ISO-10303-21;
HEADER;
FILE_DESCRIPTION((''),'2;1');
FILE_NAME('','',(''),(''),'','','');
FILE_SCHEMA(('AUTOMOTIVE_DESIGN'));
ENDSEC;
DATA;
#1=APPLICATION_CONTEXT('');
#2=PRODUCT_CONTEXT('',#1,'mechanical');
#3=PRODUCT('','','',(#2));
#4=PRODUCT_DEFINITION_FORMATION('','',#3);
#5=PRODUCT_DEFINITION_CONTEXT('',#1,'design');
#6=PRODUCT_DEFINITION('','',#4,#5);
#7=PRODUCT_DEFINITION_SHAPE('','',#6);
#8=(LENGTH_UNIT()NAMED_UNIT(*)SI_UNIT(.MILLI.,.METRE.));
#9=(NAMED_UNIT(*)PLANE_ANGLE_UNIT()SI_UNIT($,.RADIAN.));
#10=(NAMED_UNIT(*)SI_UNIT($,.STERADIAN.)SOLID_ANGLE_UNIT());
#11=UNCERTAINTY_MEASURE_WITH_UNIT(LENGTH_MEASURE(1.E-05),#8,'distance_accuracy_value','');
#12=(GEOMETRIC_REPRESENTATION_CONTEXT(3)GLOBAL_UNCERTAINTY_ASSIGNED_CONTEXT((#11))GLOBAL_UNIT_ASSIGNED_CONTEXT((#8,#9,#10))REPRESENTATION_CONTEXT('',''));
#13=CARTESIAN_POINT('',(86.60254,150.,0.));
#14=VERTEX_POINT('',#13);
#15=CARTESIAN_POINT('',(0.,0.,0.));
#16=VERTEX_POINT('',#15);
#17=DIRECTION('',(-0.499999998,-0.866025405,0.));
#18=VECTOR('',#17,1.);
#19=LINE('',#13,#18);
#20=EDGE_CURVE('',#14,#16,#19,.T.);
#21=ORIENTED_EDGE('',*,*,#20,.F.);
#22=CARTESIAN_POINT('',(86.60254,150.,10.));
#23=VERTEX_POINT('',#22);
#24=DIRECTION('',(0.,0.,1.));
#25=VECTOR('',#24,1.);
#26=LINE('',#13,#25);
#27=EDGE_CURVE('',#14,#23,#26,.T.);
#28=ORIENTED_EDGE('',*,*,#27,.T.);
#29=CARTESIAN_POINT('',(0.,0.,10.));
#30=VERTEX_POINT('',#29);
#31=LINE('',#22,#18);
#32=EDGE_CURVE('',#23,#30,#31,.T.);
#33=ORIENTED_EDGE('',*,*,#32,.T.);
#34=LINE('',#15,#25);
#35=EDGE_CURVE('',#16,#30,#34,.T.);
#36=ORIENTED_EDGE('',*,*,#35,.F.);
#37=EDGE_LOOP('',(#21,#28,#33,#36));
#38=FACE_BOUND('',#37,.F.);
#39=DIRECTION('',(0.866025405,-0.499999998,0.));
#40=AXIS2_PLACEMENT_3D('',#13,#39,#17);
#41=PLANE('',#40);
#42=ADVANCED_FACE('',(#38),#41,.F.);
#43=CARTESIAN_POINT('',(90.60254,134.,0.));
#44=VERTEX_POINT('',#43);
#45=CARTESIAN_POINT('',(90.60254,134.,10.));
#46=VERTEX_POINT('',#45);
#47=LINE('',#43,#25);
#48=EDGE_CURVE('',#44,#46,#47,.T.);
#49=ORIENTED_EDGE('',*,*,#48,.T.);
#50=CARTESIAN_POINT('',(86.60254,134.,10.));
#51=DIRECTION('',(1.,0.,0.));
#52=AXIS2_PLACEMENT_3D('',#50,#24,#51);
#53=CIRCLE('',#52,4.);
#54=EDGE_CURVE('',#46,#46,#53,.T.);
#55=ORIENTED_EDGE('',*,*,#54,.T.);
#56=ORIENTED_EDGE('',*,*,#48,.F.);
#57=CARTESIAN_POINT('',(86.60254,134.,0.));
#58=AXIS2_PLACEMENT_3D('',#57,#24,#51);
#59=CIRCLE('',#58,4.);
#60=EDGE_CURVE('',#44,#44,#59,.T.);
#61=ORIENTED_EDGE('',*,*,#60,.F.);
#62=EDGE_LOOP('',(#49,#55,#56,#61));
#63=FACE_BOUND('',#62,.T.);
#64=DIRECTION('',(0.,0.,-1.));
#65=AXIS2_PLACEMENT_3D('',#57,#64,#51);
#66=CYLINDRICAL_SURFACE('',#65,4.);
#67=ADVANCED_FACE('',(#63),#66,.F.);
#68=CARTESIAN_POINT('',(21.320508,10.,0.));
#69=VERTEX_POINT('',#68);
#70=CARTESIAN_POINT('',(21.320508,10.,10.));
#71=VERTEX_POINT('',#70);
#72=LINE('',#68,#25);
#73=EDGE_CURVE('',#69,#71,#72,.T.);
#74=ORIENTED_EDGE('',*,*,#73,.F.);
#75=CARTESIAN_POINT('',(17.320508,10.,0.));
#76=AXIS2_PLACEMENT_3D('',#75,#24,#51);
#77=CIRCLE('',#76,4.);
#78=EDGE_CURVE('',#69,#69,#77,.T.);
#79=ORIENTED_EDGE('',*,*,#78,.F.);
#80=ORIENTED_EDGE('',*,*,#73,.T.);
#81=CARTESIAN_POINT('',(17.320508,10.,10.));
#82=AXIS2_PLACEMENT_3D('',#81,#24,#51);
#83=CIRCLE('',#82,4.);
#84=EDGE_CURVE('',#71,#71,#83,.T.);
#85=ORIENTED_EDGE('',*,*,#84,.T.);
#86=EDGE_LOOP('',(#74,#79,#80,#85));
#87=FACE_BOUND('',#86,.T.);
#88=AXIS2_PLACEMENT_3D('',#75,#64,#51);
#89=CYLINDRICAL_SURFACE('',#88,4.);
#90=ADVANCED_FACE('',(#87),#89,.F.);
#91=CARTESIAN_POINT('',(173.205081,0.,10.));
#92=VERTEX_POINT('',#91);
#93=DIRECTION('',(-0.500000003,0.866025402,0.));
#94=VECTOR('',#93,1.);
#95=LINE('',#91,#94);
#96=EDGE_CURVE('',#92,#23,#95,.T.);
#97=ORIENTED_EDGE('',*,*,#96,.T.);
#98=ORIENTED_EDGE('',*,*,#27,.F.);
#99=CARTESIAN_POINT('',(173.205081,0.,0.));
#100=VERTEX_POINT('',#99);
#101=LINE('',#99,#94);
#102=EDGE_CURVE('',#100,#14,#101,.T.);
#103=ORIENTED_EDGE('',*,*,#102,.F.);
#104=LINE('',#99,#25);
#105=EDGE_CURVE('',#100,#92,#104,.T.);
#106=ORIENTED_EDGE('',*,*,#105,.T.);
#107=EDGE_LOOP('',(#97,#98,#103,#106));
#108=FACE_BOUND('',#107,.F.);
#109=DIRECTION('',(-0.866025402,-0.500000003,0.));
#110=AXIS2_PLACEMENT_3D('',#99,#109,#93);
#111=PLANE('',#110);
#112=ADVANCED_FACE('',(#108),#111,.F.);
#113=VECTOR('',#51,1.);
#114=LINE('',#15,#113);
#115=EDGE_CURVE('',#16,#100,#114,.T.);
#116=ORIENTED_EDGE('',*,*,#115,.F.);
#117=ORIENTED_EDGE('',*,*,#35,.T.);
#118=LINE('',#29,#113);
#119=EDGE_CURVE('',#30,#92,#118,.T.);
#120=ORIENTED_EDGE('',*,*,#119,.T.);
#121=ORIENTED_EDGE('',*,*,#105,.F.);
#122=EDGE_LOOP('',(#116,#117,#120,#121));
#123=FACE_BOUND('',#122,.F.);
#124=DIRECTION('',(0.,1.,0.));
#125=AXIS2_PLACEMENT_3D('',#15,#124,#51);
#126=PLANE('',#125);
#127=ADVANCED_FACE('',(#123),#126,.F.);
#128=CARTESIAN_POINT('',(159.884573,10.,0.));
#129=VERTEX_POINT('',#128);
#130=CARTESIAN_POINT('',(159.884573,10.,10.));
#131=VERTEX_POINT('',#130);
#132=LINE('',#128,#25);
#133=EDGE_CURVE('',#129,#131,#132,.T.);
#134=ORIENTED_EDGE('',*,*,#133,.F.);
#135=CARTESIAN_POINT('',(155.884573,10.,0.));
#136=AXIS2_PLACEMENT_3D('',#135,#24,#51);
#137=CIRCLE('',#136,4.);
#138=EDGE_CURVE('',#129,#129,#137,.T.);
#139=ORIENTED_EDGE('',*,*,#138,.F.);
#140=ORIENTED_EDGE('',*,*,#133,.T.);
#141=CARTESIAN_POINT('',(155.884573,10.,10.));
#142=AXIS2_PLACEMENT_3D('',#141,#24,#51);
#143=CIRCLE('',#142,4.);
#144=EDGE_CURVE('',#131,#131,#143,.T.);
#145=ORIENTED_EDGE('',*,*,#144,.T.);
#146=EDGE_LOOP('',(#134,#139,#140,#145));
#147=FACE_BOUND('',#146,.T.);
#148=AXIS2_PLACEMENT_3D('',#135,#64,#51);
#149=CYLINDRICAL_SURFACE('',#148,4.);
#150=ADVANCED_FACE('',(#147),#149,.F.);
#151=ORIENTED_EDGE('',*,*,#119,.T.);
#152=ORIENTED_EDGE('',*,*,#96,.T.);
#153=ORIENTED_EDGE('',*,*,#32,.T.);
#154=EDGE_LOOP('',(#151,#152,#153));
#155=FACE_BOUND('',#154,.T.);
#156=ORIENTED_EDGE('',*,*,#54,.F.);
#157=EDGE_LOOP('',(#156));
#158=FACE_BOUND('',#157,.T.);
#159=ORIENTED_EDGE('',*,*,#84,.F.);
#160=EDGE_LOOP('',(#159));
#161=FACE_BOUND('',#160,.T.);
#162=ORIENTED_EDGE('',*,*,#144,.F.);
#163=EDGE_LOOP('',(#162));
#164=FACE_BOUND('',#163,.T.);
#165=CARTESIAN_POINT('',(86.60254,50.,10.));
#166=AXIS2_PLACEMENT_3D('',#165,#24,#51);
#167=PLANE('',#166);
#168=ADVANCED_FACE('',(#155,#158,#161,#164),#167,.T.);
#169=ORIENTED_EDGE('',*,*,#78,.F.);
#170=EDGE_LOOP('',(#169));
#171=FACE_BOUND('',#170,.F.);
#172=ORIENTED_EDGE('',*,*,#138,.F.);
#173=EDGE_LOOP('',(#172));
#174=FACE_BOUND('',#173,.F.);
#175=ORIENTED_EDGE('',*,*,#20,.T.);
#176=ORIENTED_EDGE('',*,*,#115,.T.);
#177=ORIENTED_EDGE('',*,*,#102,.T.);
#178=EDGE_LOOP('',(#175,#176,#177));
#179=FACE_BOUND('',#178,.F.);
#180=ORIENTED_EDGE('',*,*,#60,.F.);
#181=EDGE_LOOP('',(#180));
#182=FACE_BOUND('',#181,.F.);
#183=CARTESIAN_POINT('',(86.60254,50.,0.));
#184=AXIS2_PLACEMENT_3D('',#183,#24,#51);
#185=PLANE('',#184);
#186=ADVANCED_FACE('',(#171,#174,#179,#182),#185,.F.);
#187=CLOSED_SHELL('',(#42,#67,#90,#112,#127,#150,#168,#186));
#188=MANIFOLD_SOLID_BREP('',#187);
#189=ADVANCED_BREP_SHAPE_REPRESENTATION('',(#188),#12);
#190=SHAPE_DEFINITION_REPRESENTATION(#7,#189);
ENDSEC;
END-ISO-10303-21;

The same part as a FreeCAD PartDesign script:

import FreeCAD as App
import Part
import Sketcher
from FreeCAD import Vector
Q = App.Units.Quantity


def add_polygon(sketch, points):
    """Adds a closed chain of lines whose ends are joined by coincident constraints."""
    first, n = sketch.GeometryCount, len(points)
    for a, b in zip(points, points[1:] + points[:1]):
        sketch.addGeometry(Part.LineSegment(App.Vector(*a, 0), App.Vector(*b, 0)), False)
    for i in range(n):
        sketch.addConstraint(Sketcher.Constraint("Coincident", first + i, 2, first + (i + 1) % n, 1))

doc = App.newDocument("Part")
params = doc.addObject("Spreadsheet::Sheet", "Params")
for row, (alias, value) in enumerate([
    ("sketch1_diameter", "8 mm"),
    ("pad1_length", "10 mm"),
], start=1):
    params.set(f"A{row}", alias)
    params.set(f"B{row}", "=" + value)
    params.setAlias(f"B{row}", alias)

body = doc.addObject("PartDesign::Body", "Body")

sketch1 = doc.addObject("Sketcher::SketchObject", "Sketch")
body.addObject(sketch1)
sketch1.AttachmentSupport = (doc.XY_Plane, [""])
sketch1.MapMode = "FlatFace"
add_polygon(sketch1, [(86.60254, 150), (0, 0), (173.205081, 0)])
sketch1.addGeometry(Part.Circle(Vector(17.320508, 10, 0), Vector(0, 0, 1), 4), False)
sketch1.addGeometry(Part.Circle(Vector(155.884573, 10, 0), Vector(0, 0, 1), 4), False)
sketch1.addGeometry(Part.Circle(Vector(86.60254, 134, 0), Vector(0, 0, 1), 4), False)
sketch1.addConstraint([
    Sketcher.Constraint("Horizontal", 1),
    Sketcher.Constraint("Coincident", 0, 2, -1, 1),
    Sketcher.Constraint("Equal", 3, 4),
    Sketcher.Constraint("Equal", 4, 5),
    Sketcher.Constraint("Horizontal", 3, 3, 4, 3),
    Sketcher.Constraint("Vertical", 5, 3, 2, 2),
    Sketcher.Constraint("Equal", 0, 2),
    Sketcher.Constraint("Diameter", 3, Q("8 mm")),
    Sketcher.Constraint("Angle", 0, Q("-120 deg")),
    Sketcher.Constraint("DistanceY", -1, 1, 3, 3, Q("10 mm")),
    Sketcher.Constraint("DistanceY", -1, 1, 5, 3, Q("134 mm")),
    Sketcher.Constraint("DistanceY", -1, 1, 2, 2, Q("150 mm")),
    Sketcher.Constraint("DistanceX", -1, 1, 3, 3, Q("17.320508 mm")),
    Sketcher.Constraint("DistanceX", 4, 3, 1, 2, Q("17.320508 mm")),
])
sketch1.setExpression("Constraints[10]", "Params.sketch1_diameter")
pad1 = doc.addObject("PartDesign::Pad", "Pad")
body.addObject(pad1)
pad1.Profile = sketch1
pad1.setExpression("Length", "Params.pad1_length")

doc.recompute()
